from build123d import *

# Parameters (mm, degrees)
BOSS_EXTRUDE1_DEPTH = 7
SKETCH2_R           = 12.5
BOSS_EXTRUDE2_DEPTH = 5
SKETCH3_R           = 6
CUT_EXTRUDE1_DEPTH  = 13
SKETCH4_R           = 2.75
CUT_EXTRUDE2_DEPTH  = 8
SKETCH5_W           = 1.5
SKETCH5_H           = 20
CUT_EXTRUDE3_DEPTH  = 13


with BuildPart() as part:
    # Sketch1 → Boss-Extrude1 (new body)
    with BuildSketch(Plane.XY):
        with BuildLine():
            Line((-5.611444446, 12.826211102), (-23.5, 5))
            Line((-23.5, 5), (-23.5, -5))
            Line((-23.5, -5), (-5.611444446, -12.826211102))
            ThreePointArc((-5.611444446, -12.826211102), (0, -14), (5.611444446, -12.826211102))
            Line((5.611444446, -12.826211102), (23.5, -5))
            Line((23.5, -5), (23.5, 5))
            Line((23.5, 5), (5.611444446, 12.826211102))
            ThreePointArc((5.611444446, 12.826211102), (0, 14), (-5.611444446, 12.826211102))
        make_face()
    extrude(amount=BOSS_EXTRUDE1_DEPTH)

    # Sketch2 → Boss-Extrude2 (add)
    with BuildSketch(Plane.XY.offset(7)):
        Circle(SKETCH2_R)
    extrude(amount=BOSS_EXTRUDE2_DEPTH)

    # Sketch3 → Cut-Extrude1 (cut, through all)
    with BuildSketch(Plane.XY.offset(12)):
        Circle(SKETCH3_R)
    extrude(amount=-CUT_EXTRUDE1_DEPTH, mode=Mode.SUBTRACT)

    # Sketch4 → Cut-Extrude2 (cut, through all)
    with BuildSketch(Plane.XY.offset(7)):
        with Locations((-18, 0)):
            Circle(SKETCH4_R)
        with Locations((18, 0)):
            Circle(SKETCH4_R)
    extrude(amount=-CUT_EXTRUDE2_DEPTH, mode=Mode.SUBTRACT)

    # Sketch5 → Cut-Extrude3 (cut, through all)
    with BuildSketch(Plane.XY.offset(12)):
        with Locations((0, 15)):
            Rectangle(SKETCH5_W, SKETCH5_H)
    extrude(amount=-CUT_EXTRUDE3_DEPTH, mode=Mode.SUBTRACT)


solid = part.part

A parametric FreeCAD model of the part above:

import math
import FreeCAD as App
import Part
import Sketcher

V = App.Vector


def add_polygon(sketch, points):
    """Adds a closed chain of lines whose ends are joined by coincident constraints."""
    first, n = sketch.GeometryCount, len(points)
    for a, b in zip(points, points[1:] + points[:1]):
        sketch.addGeometry(Part.LineSegment(App.Vector(*a, 0), App.Vector(*b, 0)), False)
    for i in range(n):
        sketch.addConstraint(Sketcher.Constraint("Coincident", first + i, 2, first + (i + 1) % n, 1))

doc = App.newDocument("Part")
body = doc.addObject("PartDesign::Body", "Body")

sketch1 = body.newObject("Sketcher::SketchObject", "Sketch")
sketch1.AttachmentSupport = (doc.getObject("XY_Plane"), [""])
sketch1.MapMode = "FlatFace"
sketch1.addGeometry([
    Part.LineSegment(V(-5.611444, 12.826211, 0), V(-23.5, 5, 0)),
    Part.LineSegment(V(-23.5, 5, 0), V(-23.5, -5, 0)),
    Part.LineSegment(V(-23.5, -5, 0), V(-5.611444, -12.826211, 0)),
    Part.ArcOfCircle(Part.Circle(V(0, 0, 0), V(0, 0, 1), 14), math.radians(-113.629292), math.radians(-66.370708)),
    Part.LineSegment(V(5.611444, -12.826211, 0), V(23.5, -5, 0)),
    Part.LineSegment(V(23.5, -5, 0), V(23.5, 5, 0)),
    Part.LineSegment(V(23.5, 5, 0), V(5.611444, 12.826211, 0)),
    Part.ArcOfCircle(Part.Circle(V(0, 0, 0), V(0, 0, 1), 14), math.radians(66.370708), math.radians(113.629292)),
], False)
sketch1.addConstraint([
    Sketcher.Constraint("Coincident", 0, 2, 1, 1),
    Sketcher.Constraint("Coincident", 1, 2, 2, 1),
    Sketcher.Constraint("Tangent", 2, 2, 3, 1),
    Sketcher.Constraint("Tangent", 3, 2, 4, 1),
    Sketcher.Constraint("Coincident", 4, 2, 5, 1),
    Sketcher.Constraint("Coincident", 5, 2, 6, 1),
    Sketcher.Constraint("Tangent", 6, 2, 7, 1),
    Sketcher.Constraint("Tangent", 7, 2, 0, 1),
    Sketcher.Constraint("Vertical", 1),
    Sketcher.Constraint("Vertical", 5),
    Sketcher.Constraint("Coincident", 3, 3, -1, 1),
    Sketcher.Constraint("Coincident", 7, 3, -1, 1),
    Sketcher.Constraint("Equal", 3, 7),
    Sketcher.Constraint("Symmetric", 0, 2, 4, 2, -1, 1),
    Sketcher.Constraint("Parallel", 2, 6),
    Sketcher.Constraint("Horizontal", 2, 2, 3, 2),
    Sketcher.Constraint("Radius", 3, 14.0),
    Sketcher.Constraint("DistanceY", 1, 2, 1, 1, 10.0),
    Sketcher.Constraint("DistanceX", 1, 2, 4, 2, 47.0),
])
pad1 = body.newObject("PartDesign::Pad", "Pad")
pad1.Profile = sketch1
pad1.Length = 7

sketch2 = body.newObject("Sketcher::SketchObject", "Sketch001")
sketch2.AttachmentSupport = (doc.getObject("XY_Plane"), [""])
sketch2.MapMode = "FlatFace"
sketch2.AttachmentOffset = App.Placement(V(0, 0, 7), App.Rotation())
sketch2.addGeometry(Part.Circle(V(0, 0, 0), V(0, 0, 1), 12.5), False)
sketch2.addConstraint([
    Sketcher.Constraint("Coincident", 0, 3, -1, 1),
    Sketcher.Constraint("Diameter", 0, 25.0),
])
pad2 = body.newObject("PartDesign::Pad", "Pad001")
pad2.Profile = sketch2
pad2.Length = 5

sketch3 = body.newObject("Sketcher::SketchObject", "Sketch002")
sketch3.AttachmentSupport = (doc.getObject("XY_Plane"), [""])
sketch3.MapMode = "FlatFace"
sketch3.AttachmentOffset = App.Placement(V(0, 0, 12), App.Rotation())
sketch3.addGeometry(Part.Circle(V(0, 0, 0), V(0, 0, 1), 6), False)
sketch3.addConstraint([
    Sketcher.Constraint("Coincident", 0, 3, -1, 1),
    Sketcher.Constraint("Diameter", 0, 12.0),
])
pocket1 = body.newObject("PartDesign::Pocket", "Pocket")
pocket1.Profile = sketch3
pocket1.Type = "ThroughAll"

sketch4 = body.newObject("Sketcher::SketchObject", "Sketch003")
sketch4.AttachmentSupport = (doc.getObject("XY_Plane"), [""])
sketch4.MapMode = "FlatFace"
sketch4.AttachmentOffset = App.Placement(V(0, 0, 7), App.Rotation())
sketch4.addGeometry([
    Part.Circle(V(-18, 0, 0), V(0, 0, 1), 2.75),
    Part.Circle(V(18, 0, 0), V(0, 0, 1), 2.75),
], False)
sketch4.addConstraint([
    Sketcher.Constraint("Equal", 0, 1),
    Sketcher.Constraint("Symmetric", 0, 3, 1, 3, -1, 1),
    Sketcher.Constraint("PointOnObject", 0, 3, -1),
    Sketcher.Constraint("Diameter", 0, 5.5),
    Sketcher.Constraint("DistanceX", 0, 3, -1, 1, 18.0),
])
pocket2 = body.newObject("PartDesign::Pocket", "Pocket001")
pocket2.Profile = sketch4
pocket2.Type = "ThroughAll"

sketch5 = body.newObject("Sketcher::SketchObject", "Sketch004")
sketch5.AttachmentSupport = (doc.getObject("XY_Plane"), [""])
sketch5.MapMode = "FlatFace"
sketch5.AttachmentOffset = App.Placement(V(0, 0, 12), App.Rotation())
add_polygon(sketch5, [(-0.75, 25), (-0.75, 5), (0.75, 5), (0.75, 25)])
sketch5.addConstraint([
    Sketcher.Constraint("Vertical", 0),
    Sketcher.Constraint("Horizontal", 1),
    Sketcher.Constraint("Vertical", 2),
    Sketcher.Constraint("Horizontal", 3),
    Sketcher.Constraint("DistanceY", 0, 2, 0, 1, 20.0),
    Sketcher.Constraint("DistanceX", 1, 1, 1, 2, 1.5),
    Sketcher.Constraint("DistanceY", -1, 1, 0, 2, 5.0),
    Sketcher.Constraint("DistanceX", 0, 2, -1, 1, 0.75),
])
pocket3 = body.newObject("PartDesign::Pocket", "Pocket002")
pocket3.Profile = sketch5
pocket3.Type = "ThroughAll"

doc.recompute()
